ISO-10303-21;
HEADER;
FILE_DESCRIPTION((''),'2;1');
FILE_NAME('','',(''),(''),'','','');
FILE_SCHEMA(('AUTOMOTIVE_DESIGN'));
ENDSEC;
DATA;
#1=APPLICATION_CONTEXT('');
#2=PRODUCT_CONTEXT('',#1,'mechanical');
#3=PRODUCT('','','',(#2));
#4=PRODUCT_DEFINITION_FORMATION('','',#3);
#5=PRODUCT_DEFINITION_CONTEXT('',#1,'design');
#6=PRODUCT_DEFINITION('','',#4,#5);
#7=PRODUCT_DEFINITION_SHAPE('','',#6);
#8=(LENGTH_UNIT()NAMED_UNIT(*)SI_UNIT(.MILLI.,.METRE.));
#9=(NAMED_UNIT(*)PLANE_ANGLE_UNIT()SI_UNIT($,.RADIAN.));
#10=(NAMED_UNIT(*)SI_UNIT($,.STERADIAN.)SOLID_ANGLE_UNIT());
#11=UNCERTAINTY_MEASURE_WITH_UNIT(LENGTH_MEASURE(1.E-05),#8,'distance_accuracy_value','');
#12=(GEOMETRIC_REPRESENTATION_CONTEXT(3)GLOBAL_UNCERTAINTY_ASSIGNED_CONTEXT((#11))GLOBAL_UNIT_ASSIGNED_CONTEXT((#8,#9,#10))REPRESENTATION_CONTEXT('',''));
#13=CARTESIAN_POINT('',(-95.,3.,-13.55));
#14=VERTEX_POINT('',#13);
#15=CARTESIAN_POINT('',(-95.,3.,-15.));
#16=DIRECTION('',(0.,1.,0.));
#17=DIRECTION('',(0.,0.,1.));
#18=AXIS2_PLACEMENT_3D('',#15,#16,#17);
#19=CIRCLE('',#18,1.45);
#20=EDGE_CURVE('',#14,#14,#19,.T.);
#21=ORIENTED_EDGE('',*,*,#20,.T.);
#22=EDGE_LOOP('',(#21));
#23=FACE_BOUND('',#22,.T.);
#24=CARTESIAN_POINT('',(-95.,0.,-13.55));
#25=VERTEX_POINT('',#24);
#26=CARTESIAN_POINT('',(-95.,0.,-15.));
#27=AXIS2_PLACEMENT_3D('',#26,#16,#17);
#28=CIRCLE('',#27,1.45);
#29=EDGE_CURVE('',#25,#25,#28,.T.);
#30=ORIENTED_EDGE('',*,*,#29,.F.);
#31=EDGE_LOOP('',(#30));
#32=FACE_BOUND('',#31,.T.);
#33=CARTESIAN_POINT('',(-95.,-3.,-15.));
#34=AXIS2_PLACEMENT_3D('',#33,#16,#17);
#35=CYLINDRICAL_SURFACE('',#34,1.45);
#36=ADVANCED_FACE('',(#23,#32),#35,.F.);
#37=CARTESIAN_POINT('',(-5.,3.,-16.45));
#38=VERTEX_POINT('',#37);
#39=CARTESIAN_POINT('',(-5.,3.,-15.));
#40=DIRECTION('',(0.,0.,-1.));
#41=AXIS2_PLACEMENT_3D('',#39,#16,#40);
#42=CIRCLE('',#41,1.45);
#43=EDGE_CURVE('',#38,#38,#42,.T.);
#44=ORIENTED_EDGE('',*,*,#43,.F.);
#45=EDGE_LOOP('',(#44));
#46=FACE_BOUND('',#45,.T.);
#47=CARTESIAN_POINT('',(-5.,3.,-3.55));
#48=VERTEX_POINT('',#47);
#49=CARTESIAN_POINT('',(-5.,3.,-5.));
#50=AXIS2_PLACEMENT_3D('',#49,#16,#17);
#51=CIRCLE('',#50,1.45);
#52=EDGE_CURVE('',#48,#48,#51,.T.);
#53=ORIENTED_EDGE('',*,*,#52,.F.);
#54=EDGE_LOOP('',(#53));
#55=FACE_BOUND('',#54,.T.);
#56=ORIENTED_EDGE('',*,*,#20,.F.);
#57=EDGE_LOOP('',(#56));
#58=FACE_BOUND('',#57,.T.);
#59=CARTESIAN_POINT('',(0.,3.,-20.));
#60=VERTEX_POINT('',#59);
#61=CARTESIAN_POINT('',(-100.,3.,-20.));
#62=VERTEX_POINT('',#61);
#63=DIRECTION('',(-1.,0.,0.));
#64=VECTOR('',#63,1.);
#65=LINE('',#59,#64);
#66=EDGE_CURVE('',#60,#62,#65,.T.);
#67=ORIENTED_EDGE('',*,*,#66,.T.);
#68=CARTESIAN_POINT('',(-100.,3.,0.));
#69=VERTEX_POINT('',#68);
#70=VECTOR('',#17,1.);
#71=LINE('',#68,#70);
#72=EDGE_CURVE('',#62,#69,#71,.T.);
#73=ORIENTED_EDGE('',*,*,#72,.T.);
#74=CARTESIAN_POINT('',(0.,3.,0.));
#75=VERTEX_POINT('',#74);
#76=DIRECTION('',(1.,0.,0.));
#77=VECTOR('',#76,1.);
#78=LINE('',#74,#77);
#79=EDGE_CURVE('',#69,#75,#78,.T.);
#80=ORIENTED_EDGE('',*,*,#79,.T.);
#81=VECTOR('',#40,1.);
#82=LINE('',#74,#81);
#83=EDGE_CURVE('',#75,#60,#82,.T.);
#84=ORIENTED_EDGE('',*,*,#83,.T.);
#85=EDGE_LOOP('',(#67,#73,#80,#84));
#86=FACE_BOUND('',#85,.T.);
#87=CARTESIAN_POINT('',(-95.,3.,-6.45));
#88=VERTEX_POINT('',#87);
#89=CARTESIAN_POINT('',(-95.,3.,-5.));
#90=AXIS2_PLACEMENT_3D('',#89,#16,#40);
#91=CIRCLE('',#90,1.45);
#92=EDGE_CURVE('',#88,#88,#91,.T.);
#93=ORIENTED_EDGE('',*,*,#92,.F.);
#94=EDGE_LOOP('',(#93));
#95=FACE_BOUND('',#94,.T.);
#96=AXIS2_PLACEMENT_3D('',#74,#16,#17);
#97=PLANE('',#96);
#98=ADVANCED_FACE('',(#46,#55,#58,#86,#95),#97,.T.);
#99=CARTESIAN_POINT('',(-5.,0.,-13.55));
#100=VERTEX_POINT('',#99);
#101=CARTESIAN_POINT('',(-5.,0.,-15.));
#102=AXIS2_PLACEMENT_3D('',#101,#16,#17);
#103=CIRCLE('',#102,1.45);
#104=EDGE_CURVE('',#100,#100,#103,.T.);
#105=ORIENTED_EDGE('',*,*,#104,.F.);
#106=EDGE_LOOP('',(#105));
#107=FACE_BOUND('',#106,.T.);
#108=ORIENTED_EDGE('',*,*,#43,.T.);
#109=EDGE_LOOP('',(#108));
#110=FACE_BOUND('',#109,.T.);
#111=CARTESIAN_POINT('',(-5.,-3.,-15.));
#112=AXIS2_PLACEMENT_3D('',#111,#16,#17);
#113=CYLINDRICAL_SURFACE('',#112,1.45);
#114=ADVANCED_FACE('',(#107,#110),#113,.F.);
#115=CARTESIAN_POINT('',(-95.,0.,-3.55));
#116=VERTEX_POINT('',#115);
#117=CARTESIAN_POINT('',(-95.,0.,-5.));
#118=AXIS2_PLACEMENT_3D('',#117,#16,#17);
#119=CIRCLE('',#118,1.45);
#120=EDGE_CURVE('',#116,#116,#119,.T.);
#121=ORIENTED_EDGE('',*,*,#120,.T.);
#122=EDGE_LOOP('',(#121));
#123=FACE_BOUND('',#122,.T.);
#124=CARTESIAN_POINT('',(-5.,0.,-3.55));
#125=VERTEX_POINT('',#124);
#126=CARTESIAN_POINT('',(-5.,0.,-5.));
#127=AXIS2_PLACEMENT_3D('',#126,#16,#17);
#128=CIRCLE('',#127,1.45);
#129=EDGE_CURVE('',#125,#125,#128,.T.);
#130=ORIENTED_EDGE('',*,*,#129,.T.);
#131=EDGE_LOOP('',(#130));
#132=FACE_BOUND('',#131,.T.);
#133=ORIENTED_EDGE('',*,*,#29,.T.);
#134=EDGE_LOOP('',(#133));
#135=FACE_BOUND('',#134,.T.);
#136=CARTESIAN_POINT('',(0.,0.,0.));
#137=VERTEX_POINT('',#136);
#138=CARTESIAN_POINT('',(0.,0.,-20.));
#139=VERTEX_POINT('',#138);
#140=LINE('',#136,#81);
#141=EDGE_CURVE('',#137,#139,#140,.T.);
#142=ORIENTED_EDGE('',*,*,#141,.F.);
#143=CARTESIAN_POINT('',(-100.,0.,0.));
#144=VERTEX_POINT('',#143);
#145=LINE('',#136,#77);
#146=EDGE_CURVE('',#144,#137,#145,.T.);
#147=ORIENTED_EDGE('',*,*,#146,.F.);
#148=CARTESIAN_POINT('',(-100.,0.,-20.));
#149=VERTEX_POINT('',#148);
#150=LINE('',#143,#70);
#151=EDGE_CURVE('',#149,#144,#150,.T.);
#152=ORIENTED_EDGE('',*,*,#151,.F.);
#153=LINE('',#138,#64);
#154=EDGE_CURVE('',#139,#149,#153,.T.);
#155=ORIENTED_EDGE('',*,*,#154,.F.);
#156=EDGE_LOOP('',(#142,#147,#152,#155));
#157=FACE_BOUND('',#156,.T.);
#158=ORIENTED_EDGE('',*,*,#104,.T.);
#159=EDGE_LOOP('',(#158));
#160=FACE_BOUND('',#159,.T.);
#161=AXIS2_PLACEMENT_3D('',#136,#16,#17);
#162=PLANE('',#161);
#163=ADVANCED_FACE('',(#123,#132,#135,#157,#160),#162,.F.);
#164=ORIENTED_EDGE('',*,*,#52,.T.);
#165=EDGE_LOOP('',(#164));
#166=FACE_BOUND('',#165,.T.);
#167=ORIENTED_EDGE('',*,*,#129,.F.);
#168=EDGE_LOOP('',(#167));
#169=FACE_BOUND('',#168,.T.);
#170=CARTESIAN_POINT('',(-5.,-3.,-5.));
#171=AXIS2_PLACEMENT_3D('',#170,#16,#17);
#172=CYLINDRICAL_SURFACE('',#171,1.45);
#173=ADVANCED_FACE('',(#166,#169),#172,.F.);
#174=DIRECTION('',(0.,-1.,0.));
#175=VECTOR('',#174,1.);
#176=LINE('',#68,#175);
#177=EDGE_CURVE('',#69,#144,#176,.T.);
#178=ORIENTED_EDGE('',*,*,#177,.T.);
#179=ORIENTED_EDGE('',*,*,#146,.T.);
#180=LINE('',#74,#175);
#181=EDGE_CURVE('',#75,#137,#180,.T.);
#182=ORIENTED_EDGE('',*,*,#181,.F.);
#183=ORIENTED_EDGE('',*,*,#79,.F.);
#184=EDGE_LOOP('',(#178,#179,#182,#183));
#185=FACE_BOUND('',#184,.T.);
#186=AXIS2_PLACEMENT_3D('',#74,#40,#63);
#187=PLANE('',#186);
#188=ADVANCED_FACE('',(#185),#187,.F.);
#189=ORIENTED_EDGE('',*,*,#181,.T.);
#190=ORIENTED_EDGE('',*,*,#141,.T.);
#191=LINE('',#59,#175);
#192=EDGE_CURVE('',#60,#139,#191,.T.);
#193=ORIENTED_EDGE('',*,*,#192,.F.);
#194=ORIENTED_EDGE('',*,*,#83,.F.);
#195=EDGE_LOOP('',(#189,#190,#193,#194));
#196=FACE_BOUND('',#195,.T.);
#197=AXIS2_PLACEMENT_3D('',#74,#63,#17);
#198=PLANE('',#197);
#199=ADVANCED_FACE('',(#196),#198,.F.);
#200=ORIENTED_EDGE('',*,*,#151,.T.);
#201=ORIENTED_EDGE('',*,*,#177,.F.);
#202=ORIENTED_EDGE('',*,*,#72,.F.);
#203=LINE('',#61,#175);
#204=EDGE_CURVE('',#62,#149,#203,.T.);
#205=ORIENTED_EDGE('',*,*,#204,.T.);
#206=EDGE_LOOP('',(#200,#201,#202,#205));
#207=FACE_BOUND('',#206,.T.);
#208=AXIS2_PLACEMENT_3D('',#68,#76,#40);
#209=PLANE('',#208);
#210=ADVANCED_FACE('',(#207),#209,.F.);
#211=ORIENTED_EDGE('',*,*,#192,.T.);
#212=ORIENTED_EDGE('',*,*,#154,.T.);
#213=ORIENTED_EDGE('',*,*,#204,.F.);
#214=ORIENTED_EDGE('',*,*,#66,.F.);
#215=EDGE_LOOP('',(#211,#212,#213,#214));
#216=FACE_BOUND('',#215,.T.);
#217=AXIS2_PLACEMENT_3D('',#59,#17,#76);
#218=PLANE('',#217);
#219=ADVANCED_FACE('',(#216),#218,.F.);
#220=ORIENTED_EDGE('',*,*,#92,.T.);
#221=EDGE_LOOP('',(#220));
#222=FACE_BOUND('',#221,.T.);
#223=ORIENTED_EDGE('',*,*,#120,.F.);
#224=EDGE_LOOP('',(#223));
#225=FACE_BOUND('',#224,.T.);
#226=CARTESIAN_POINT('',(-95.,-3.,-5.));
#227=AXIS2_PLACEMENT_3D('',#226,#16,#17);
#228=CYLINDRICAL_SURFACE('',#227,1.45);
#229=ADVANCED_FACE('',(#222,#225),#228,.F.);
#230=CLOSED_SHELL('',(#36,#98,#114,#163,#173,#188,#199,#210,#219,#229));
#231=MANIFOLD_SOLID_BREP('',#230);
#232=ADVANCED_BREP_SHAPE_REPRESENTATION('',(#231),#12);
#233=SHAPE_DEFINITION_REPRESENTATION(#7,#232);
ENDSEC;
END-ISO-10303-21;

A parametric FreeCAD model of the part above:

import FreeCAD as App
import Part
import Sketcher


def add_polygon(sketch, points):
    """Adds a closed chain of lines whose ends are joined by coincident constraints."""
    first, n = sketch.GeometryCount, len(points)
    for a, b in zip(points, points[1:] + points[:1]):
        sketch.addGeometry(Part.LineSegment(App.Vector(*a, 0), App.Vector(*b, 0)), False)
    for i in range(n):
        sketch.addConstraint(Sketcher.Constraint("Coincident", first + i, 2, first + (i + 1) % n, 1))

doc = App.newDocument("Part")
body = doc.addObject("PartDesign::Body", "Body")

# Sketch on XZ plane
sketch1 = body.newObject("Sketcher::SketchObject", "Sketch")
sketch1.AttachmentSupport = (doc.getObject("XZ_Plane"), [""])
sketch1.MapMode = "FlatFace"
add_polygon(sketch1, [(-100, -20), (-100, 0), (0, 0), (0, -20)])  # lines 0-3
sketch1.addConstraint([
    Sketcher.Constraint("Vertical", 0),
    Sketcher.Constraint("Horizontal", 1),
    Sketcher.Constraint("Vertical", 2),
    Sketcher.Constraint("Horizontal", 3),
    Sketcher.Constraint("Coincident", 1, 2, -1, 1),
    Sketcher.Constraint("DistanceX", 1, 1, 1, 2, 100.0),
    Sketcher.Constraint("DistanceY", 0, 1, 0, 2, 20.0),
])
pad1 = body.newObject("PartDesign::Pad", "Pad")
pad1.Profile = sketch1
pad1.Length = 3
pad1.Reversed = True

# Sketch on XZ plane
sketch2 = body.newObject("Sketcher::SketchObject", "Sketch001")
sketch2.AttachmentSupport = (doc.getObject("XZ_Plane"), [""])
sketch2.MapMode = "FlatFace"
sketch2.AttachmentOffset = App.Placement(App.Vector(0, 0, -3), App.Rotation())
sketch2.addGeometry([
    Part.Circle(App.Vector(-95, -15, 0), App.Vector(0, 0, 1), 1.45),
    Part.Circle(App.Vector(-95, -5, 0), App.Vector(0, 0, 1), 1.45),
    Part.Circle(App.Vector(-5, -5, 0), App.Vector(0, 0, 1), 1.45),
    Part.Circle(App.Vector(-5, -15, 0), App.Vector(0, 0, 1), 1.45),
], False)
sketch2.addConstraint([
    Sketcher.Constraint("Equal", 0, 1),
    Sketcher.Constraint("Equal", 1, 2),
    Sketcher.Constraint("Equal", 2, 3),
    Sketcher.Constraint("Horizontal", 1, 3, 2, 3),
    Sketcher.Constraint("Horizontal", 0, 3, 3, 3),
    Sketcher.Constraint("Vertical", 0, 3, 1, 3),
    Sketcher.Constraint("Vertical", 2, 3, 3, 3),
    Sketcher.Constraint("Diameter", 0, 2.9),
    Sketcher.Constraint("DistanceX", 0, 3, -1, 1, 95.0),
    Sketcher.Constraint("DistanceY", 0, 3, -1, 1, 15.0),
    Sketcher.Constraint("DistanceY", 1, 3, -1, 1, 5.0),
    Sketcher.Constraint("DistanceX", 2, 3, -1, 1, 5.0),
])
pocket1 = body.newObject("PartDesign::Pocket", "Pocket")
pocket1.Profile = sketch2
pocket1.Length = 6
pocket1.Reversed = True

doc.recompute()
